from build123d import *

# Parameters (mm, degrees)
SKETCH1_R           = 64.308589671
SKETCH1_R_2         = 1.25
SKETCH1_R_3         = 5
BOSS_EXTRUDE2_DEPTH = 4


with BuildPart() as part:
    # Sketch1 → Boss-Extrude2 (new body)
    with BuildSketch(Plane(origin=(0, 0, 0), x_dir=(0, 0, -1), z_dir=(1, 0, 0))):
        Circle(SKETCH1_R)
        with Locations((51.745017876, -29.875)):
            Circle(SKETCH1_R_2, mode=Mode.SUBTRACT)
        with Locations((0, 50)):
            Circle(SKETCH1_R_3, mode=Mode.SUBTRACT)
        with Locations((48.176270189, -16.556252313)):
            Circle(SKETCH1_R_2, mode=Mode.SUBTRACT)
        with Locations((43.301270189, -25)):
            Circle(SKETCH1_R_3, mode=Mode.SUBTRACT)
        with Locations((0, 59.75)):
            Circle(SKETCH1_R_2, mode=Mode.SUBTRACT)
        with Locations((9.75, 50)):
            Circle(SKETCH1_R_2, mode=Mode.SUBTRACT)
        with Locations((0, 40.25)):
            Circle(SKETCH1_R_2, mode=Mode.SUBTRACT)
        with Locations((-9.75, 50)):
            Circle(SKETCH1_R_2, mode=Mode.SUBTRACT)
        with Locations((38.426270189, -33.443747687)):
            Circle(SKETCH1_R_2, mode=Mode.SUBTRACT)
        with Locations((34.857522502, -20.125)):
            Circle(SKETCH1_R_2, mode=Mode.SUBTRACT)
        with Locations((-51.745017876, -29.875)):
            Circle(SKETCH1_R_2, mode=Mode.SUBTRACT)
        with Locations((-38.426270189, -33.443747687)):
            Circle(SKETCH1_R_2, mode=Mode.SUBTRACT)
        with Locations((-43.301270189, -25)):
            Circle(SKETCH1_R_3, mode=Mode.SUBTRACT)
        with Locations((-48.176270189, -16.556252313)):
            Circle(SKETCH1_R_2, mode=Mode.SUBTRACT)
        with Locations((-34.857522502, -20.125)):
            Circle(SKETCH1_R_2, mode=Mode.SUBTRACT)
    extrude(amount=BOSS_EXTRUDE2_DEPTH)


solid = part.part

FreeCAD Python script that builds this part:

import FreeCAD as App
import Part
import Sketcher
Q = App.Units.Quantity

doc = App.newDocument("Part")
body = doc.addObject("PartDesign::Body", "Body")

# Sketch on YZ plane
sketch1 = body.newObject("Sketcher::SketchObject", "Sketch")
sketch1.AttachmentSupport = (doc.getObject("YZ_Plane"), [""])
sketch1.MapMode = "FlatFace"
sketch1.addGeometry(Part.Circle(App.Vector(0, 0, 0), App.Vector(0, 0, 1), 64.3), False)
sketch1.addGeometry(Part.Circle(App.Vector(-29.9, 51.7, 0), App.Vector(0, 0, 1), 1.2), False)
sketch1.addGeometry(Part.Circle(App.Vector(-25, 43.3, 0), App.Vector(0, 0, 1), 5), False)
sketch1.addGeometry(Part.Circle(App.Vector(-33.4, 38.4, 0), App.Vector(0, 0, 1), 1.2), False)
sketch1.addGeometry(Part.Circle(App.Vector(-16.6, 48.2, 0), App.Vector(0, 0, 1), 1.2), False)
sketch1.addGeometry(Part.Circle(App.Vector(-20.1, 34.9, 0), App.Vector(0, 0, 1), 1.2), False)
sketch1.addGeometry(Part.Circle(App.Vector(-33.4, -38.4, 0), App.Vector(0, 0, 1), 1.2), False)
sketch1.addGeometry(Part.Circle(App.Vector(-29.9, -51.7, 0), App.Vector(0, 0, 1), 1.2), False)
sketch1.addGeometry(Part.Circle(App.Vector(-25, -43.3, 0), App.Vector(0, 0, 1), 5), False)
sketch1.addGeometry(Part.Circle(App.Vector(-20.1, -34.9, 0), App.Vector(0, 0, 1), 1.2), False)
sketch1.addGeometry(Part.Circle(App.Vector(-16.6, -48.2, 0), App.Vector(0, 0, 1), 1.2), False)
sketch1.addGeometry(Part.Circle(App.Vector(50, 9.8, 0), App.Vector(0, 0, 1), 1.2), False)
sketch1.addGeometry(Part.Circle(App.Vector(40.2, 0, 0), App.Vector(0, 0, 1), 1.2), False)
sketch1.addGeometry(Part.Circle(App.Vector(50, 0, 0), App.Vector(0, 0, 1), 5), False)
sketch1.addGeometry(Part.Circle(App.Vector(50, -9.8, 0), App.Vector(0, 0, 1), 1.2), False)
sketch1.addGeometry(Part.Circle(App.Vector(59.8, 0, 0), App.Vector(0, 0, 1), 1.2), False)
sketch1.addConstraint(Sketcher.Constraint("Coincident", 0, 3, -1, 1))
sketch1.addConstraint(Sketcher.Constraint("Equal", 1, 3))
sketch1.addConstraint(Sketcher.Constraint("Equal", 3, 4))
sketch1.addConstraint(Sketcher.Constraint("Equal", 4, 5))
sketch1.addConstraint(Sketcher.Constraint("Equal", 5, 6))
sketch1.addConstraint(Sketcher.Constraint("Equal", 6, 7))
sketch1.addConstraint(Sketcher.Constraint("Equal", 2, 8))
sketch1.addConstraint(Sketcher.Constraint("Equal", 7, 9))
sketch1.addConstraint(Sketcher.Constraint("Equal", 9, 10))
sketch1.addConstraint(Sketcher.Constraint("Equal", 10, 11))
sketch1.addConstraint(Sketcher.Constraint("Equal", 11, 12))
sketch1.addConstraint(Sketcher.Constraint("Equal", 8, 13))
sketch1.addConstraint(Sketcher.Constraint("Equal", 12, 14))
sketch1.addConstraint(Sketcher.Constraint("Equal", 14, 15))
sketch1.addConstraint(Sketcher.Constraint("Symmetric", 3, 3, 6, 3, -1))
sketch1.addConstraint(Sketcher.Constraint("Symmetric", 1, 3, 7, 3, -1))
sketch1.addConstraint(Sketcher.Constraint("Symmetric", 2, 3, 8, 3, -1))
sketch1.addConstraint(Sketcher.Constraint("Symmetric", 5, 3, 9, 3, -1))
sketch1.addConstraint(Sketcher.Constraint("Symmetric", 4, 3, 10, 3, -1))
sketch1.addConstraint(Sketcher.Constraint("Symmetric", 11, 3, 14, 3, -1))
sketch1.addConstraint(Sketcher.Constraint("PointOnObject", 12, 3, -1))
sketch1.addConstraint(Sketcher.Constraint("PointOnObject", 13, 3, -1))
sketch1.addConstraint(Sketcher.Constraint("PointOnObject", 15, 3, -1))
sketch1.addConstraint(Sketcher.Constraint("Vertical", 11, 3, 13, 3))
sketch1.addConstraint(Sketcher.Constraint("Diameter", 2, Q("10 mm")))
sketch1.addConstraint(Sketcher.Constraint("Diameter", 1, Q("2.5 mm")))
sketch1.addConstraint(Sketcher.Constraint("DistanceX", 2, 3, -1, 1, Q("25 mm")))
sketch1.addConstraint(Sketcher.Constraint("DistanceX", -1, 1, 11, 3, Q("50 mm")))
sketch1.addConstraint(Sketcher.Constraint("DistanceY", 14, 3, 11, 3, Q("19.5 mm")))
sketch1.addConstraint(Sketcher.Constraint("DistanceX", 12, 3, 15, 3, Q("19.5 mm")))
sketch1.addConstraint(Sketcher.Constraint("Diameter", 0, Q("128.617179 mm")))
sketch1.addConstraint(Sketcher.Constraint("DistanceX", -1, 1, 12, 3, Q("40.25 mm")))
sketch1.addConstraint(Sketcher.Constraint("DistanceY", 3, 3, 4, 3, Q("9.75 mm")))
sketch1.addConstraint(Sketcher.Constraint("DistanceX", 1, 3, 5, 3, Q("9.75 mm")))
sketch1.addConstraint(Sketcher.Constraint("DistanceX", 1, 3, -1, 1, Q("29.875 mm")))
sketch1.addConstraint(Sketcher.Constraint("DistanceY", 3, 3, 2, 3, Q("4.875 mm")))
sketch1.addConstraint(Sketcher.Constraint("DistanceY", -1, 1, 2, 3, Q("43.30127 mm")))
sketch1.addConstraint(Sketcher.Constraint("DistanceY", 7, 3, 5, 3, Q("86.60254 mm")))
sketch1.addConstraint(Sketcher.Constraint("DistanceY", 7, 3, 3, 3, Q("90.171288 mm")))
sketch1.addConstraint(Sketcher.Constraint("DistanceX", 3, 3, -1, 1, Q("33.443748 mm")))
sketch1.addConstraint(Sketcher.Constraint("DistanceX", 4, 3, -1, 1, Q("16.556252 mm")))
pad1 = body.newObject("PartDesign::Pad", "Pad")
pad1.Profile = sketch1
pad1.Length = 4

doc.recompute()
